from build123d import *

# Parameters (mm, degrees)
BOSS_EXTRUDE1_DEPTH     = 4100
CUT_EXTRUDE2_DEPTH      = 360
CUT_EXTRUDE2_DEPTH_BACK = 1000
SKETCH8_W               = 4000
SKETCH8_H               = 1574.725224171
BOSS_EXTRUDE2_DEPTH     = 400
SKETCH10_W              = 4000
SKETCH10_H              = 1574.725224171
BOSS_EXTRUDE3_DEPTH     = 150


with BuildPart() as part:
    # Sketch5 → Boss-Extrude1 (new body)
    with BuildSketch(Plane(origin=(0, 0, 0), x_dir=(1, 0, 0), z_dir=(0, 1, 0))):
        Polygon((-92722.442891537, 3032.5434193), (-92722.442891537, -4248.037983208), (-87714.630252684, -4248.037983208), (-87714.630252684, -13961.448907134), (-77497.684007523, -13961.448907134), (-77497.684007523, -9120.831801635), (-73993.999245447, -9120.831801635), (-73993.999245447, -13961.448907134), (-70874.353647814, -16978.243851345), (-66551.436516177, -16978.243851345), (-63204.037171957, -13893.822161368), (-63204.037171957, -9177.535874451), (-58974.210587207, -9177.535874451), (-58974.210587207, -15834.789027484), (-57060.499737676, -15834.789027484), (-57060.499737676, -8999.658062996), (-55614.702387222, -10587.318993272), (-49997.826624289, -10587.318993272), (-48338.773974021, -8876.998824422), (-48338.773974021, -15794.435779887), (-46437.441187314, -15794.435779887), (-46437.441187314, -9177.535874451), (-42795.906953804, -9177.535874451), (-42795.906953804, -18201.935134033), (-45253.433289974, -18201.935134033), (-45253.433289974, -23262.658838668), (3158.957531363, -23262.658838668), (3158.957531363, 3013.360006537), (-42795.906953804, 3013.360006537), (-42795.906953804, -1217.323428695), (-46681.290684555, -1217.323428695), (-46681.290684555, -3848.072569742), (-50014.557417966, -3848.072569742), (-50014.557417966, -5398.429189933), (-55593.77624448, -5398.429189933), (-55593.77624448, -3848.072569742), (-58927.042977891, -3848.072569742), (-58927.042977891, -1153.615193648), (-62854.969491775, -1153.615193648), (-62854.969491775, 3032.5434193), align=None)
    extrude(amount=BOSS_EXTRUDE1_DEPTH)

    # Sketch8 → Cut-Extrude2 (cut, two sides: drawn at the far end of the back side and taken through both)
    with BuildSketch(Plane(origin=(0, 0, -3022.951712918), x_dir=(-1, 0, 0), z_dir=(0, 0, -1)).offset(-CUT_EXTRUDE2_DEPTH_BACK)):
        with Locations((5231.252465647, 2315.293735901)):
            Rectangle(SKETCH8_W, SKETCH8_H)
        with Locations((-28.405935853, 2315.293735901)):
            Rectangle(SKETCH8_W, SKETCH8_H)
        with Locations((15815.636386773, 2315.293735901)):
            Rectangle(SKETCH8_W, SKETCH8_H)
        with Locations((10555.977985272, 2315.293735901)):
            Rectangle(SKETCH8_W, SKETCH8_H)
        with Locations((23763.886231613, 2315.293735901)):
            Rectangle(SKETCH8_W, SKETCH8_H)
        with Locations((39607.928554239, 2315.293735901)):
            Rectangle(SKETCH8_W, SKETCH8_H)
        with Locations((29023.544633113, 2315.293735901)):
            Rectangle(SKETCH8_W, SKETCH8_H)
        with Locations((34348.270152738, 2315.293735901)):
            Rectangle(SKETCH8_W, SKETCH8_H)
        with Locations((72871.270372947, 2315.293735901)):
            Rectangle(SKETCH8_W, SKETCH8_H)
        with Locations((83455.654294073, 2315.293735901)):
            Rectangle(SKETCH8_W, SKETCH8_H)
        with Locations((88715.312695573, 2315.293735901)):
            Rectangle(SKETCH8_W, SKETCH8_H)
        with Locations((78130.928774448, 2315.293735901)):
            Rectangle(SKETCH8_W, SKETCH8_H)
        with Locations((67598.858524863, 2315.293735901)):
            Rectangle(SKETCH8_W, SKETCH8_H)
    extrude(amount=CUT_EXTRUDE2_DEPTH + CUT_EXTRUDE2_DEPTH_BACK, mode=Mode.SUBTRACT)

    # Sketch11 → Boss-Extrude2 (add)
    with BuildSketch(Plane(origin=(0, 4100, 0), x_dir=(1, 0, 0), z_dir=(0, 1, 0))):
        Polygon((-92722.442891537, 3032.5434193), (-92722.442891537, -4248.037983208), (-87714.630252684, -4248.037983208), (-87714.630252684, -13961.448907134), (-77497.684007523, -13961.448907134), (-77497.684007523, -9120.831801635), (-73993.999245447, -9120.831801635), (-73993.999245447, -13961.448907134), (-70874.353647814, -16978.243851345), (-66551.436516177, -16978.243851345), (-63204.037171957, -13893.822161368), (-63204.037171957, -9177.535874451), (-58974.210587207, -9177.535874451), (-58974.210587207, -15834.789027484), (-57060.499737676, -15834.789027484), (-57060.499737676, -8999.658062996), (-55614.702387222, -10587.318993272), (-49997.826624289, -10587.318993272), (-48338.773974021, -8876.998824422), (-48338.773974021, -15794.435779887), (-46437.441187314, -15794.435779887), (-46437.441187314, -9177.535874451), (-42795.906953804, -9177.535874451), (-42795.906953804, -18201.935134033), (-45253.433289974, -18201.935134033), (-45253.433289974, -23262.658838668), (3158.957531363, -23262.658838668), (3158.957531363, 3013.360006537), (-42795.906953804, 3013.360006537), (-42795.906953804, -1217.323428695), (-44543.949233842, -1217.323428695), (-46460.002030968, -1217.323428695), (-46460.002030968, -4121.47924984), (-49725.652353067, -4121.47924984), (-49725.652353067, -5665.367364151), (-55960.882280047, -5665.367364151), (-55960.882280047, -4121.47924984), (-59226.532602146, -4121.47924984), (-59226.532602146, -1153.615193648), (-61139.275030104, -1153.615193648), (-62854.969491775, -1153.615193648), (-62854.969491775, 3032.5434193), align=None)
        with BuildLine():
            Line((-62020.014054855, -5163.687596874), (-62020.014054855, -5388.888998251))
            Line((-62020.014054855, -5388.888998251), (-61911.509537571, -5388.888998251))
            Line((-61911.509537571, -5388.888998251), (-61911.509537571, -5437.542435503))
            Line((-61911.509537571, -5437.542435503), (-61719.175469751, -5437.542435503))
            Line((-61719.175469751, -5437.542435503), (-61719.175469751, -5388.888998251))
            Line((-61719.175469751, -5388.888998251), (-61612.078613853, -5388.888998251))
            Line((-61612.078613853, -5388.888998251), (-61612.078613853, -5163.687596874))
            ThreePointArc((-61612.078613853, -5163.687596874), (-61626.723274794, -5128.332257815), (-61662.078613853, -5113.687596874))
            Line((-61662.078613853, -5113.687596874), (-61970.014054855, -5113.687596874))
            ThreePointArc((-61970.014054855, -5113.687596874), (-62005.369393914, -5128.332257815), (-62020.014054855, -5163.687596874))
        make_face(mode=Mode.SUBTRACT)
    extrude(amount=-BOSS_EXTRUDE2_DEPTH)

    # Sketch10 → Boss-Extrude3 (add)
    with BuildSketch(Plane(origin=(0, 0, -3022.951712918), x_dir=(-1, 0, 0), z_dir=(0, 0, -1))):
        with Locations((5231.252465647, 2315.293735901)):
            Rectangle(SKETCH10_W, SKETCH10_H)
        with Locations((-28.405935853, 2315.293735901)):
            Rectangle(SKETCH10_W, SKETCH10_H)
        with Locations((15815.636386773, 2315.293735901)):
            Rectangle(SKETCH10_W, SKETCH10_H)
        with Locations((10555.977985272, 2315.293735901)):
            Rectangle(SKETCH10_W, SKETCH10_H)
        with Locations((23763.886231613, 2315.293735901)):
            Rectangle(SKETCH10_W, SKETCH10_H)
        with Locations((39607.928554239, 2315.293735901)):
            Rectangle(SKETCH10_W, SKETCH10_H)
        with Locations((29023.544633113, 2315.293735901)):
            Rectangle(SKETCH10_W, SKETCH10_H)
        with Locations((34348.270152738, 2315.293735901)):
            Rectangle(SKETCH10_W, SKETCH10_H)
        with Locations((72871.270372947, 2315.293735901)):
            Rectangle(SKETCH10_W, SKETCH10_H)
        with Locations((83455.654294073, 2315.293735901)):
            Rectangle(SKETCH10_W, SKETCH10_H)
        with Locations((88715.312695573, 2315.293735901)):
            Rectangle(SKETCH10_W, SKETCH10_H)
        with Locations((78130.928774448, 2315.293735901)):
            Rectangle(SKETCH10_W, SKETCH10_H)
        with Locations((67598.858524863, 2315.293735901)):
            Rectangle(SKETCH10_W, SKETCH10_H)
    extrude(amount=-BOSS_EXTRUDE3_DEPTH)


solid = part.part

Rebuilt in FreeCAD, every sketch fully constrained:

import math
import FreeCAD as App
import Part
import Sketcher
from FreeCAD import Vector


def add_polygon(sketch, points):
    """Adds a closed chain of lines whose ends are joined by coincident constraints."""
    first, n = sketch.GeometryCount, len(points)
    for a, b in zip(points, points[1:] + points[:1]):
        sketch.addGeometry(Part.LineSegment(App.Vector(*a, 0), App.Vector(*b, 0)), False)
    for i in range(n):
        sketch.addConstraint(Sketcher.Constraint("Coincident", first + i, 2, first + (i + 1) % n, 1))

doc = App.newDocument("Part")
params = doc.addObject("Spreadsheet::Sheet", "Params")
for row, (alias, value) in enumerate([
    ("pad1_length", "4100 mm"),
    ("sketch2_width", "4000 mm"),
    ("pocket1_length", "360 mm"),
    ("pocket1_length2", "1000 mm"),
    ("sketch3_radius", "50 mm"),
    ("pad2_length", "400 mm"),
    ("sketch4_width", "4000 mm"),
    ("pad3_length", "150 mm"),
], start=1):
    params.set(f"A{row}", alias)
    params.set(f"B{row}", "=" + value)
    params.setAlias(f"B{row}", alias)

body = doc.addObject("PartDesign::Body", "Body")

sketch1 = body.newObject("Sketcher::SketchObject", "Sketch")
sketch1.AttachmentSupport = (doc.getObject("XZ_Plane"), [""])
sketch1.MapMode = "FlatFace"
add_polygon(sketch1, [(-92722, -3033), (-92722, 4248), (-87715, 4248), (-87715, 13961), (-77498, 13961), (-77498, 9121), (-73994, 9121), (-73994, 13961), (-70874, 16978), (-66551, 16978), (-63204, 13894), (-63204, 9178), (-58974, 9178), (-58974, 15835), (-57060, 15835), (-57060, 9000), (-55615, 10587), (-49998, 10587), (-48339, 8877), (-48339, 15794), (-46437, 15794), (-46437, 9178), (-42796, 9178), (-42796, 18202), (-45253, 18202), (-45253, 23263), (3159, 23263), (3159, -3013), (-42796, -3013), (-42796, 1217), (-46681, 1217), (-46681, 3848), (-50015, 3848), (-50015, 5398), (-55594, 5398), (-55594, 3848), (-58927, 3848), (-58927, 1154), (-62855, 1154), (-62855, -3033)])
sketch1.addConstraint(Sketcher.Constraint("Vertical", 0))
sketch1.addConstraint(Sketcher.Constraint("Horizontal", 1))
sketch1.addConstraint(Sketcher.Constraint("Vertical", 2))
sketch1.addConstraint(Sketcher.Constraint("Horizontal", 3))
sketch1.addConstraint(Sketcher.Constraint("Vertical", 4))
sketch1.addConstraint(Sketcher.Constraint("Horizontal", 5))
sketch1.addConstraint(Sketcher.Constraint("Vertical", 6))
sketch1.addConstraint(Sketcher.Constraint("Horizontal", 8))
sketch1.addConstraint(Sketcher.Constraint("Vertical", 10))
sketch1.addConstraint(Sketcher.Constraint("Horizontal", 11))
sketch1.addConstraint(Sketcher.Constraint("Vertical", 12))
sketch1.addConstraint(Sketcher.Constraint("Horizontal", 13))
sketch1.addConstraint(Sketcher.Constraint("Vertical", 14))
sketch1.addConstraint(Sketcher.Constraint("Horizontal", 16))
sketch1.addConstraint(Sketcher.Constraint("Vertical", 18))
sketch1.addConstraint(Sketcher.Constraint("Horizontal", 19))
sketch1.addConstraint(Sketcher.Constraint("Vertical", 20))
sketch1.addConstraint(Sketcher.Constraint("Horizontal", 21))
sketch1.addConstraint(Sketcher.Constraint("Vertical", 22))
sketch1.addConstraint(Sketcher.Constraint("Horizontal", 23))
sketch1.addConstraint(Sketcher.Constraint("Vertical", 24))
sketch1.addConstraint(Sketcher.Constraint("Horizontal", 25))
sketch1.addConstraint(Sketcher.Constraint("Vertical", 26))
sketch1.addConstraint(Sketcher.Constraint("Horizontal", 27))
sketch1.addConstraint(Sketcher.Constraint("Vertical", 28))
sketch1.addConstraint(Sketcher.Constraint("Horizontal", 29))
sketch1.addConstraint(Sketcher.Constraint("Vertical", 30))
sketch1.addConstraint(Sketcher.Constraint("Horizontal", 31))
sketch1.addConstraint(Sketcher.Constraint("Vertical", 32))
sketch1.addConstraint(Sketcher.Constraint("Horizontal", 33))
sketch1.addConstraint(Sketcher.Constraint("Vertical", 34))
sketch1.addConstraint(Sketcher.Constraint("Horizontal", 35))
sketch1.addConstraint(Sketcher.Constraint("Vertical", 36))
sketch1.addConstraint(Sketcher.Constraint("Horizontal", 37))
sketch1.addConstraint(Sketcher.Constraint("Vertical", 38))
sketch1.addConstraint(Sketcher.Constraint("Horizontal", 39))
sketch1.addConstraint(Sketcher.Constraint("Horizontal", 3, 2, 6, 2))
sketch1.addConstraint(Sketcher.Constraint("Horizontal", 11, 2, 20, 2))
sketch1.addConstraint(Sketcher.Constraint("Horizontal", 31, 2, 34, 2))
sketch1.addConstraint(Sketcher.Constraint("Vertical", 22, 2, 27, 2))
sketch1.addConstraint(Sketcher.Constraint("Equal", 31, 35))
sketch1.addConstraint(Sketcher.Constraint("DistanceX", 39, 2, 39, 1, 29867.4734))
sketch1.addConstraint(Sketcher.Constraint("DistanceY", 27, 2, 16, 2, 13600.679))
sketch1.addConstraint(Sketcher.Constraint("DistanceX", 1, 1, 1, 2, 5007.812639))
sketch1.addConstraint(Sketcher.Constraint("DistanceX", 8, 1, 8, 2, 4322.917132))
sketch1.addConstraint(Sketcher.Constraint("DistanceX", 13, 1, 13, 2, 1913.71085))
sketch1.addConstraint(Sketcher.Constraint("DistanceX", 25, 1, 25, 2, 48412.390821))
sketch1.addConstraint(Sketcher.Constraint("DistanceX", 29, 2, 29, 1, 3885.383731))
sketch1.addConstraint(Sketcher.Constraint("DistanceY", 22, 1, 22, 2, 9024.39926))
sketch1.addConstraint(Sketcher.Constraint("DistanceY", 30, 1, 30, 2, 2630.749141))
sketch1.addConstraint(Sketcher.Constraint("DistanceY", 32, 1, 32, 2, 1550.35662))
sketch1.addConstraint(Sketcher.Constraint("DistanceY", -1, 1, 4, 2, 9120.831802))
sketch1.addConstraint(Sketcher.Constraint("DistanceY", 14, 2, 9, 2, 4894.164098))
sketch1.addConstraint(Sketcher.Constraint("DistanceX", 11, 2, 15, 2, 3359.5082))
sketch1.addConstraint(Sketcher.Constraint("DistanceX", 15, 2, 19, 2, 9177.2612))
sketch1.addConstraint(Sketcher.Constraint("Distance", 17, 2382.78215))
sketch1.addConstraint(Sketcher.Constraint("DistanceX", 3, 1, 3, 2, 10216.946245))
sketch1.addConstraint(Sketcher.Constraint("DistanceX", 5, 1, 5, 2, 3503.684762))
sketch1.addConstraint(Sketcher.Constraint("DistanceX", 11, 1, 11, 2, 4229.826585))
sketch1.addConstraint(Sketcher.Constraint("DistanceX", 16, 1, 16, 2, 5616.875763))
sketch1.addConstraint(Sketcher.Constraint("DistanceX", 19, 1, 19, 2, 1901.332787))
sketch1.addConstraint(Sketcher.Constraint("DistanceX", 21, 1, 21, 2, 3641.534234))
sketch1.addConstraint(Sketcher.Constraint("DistanceX", 23, 2, 23, 1, 2457.526336))
sketch1.addConstraint(Sketcher.Constraint("DistanceX", 31, 2, 31, 1, 3333.266733))
sketch1.addConstraint(Sketcher.Constraint("DistanceX", 33, 2, 33, 1, 5579.218827))
sketch1.addConstraint(Sketcher.Constraint("DistanceX", 37, 2, 37, 1, 3927.926514))
sketch1.addConstraint(Sketcher.Constraint("DistanceY", 0, 1, 0, 2, 7280.581403))
sketch1.addConstraint(Sketcher.Constraint("DistanceY", 2, 1, 2, 2, 9713.410924))
sketch1.addConstraint(Sketcher.Constraint("DistanceY", 4, 2, 4, 1, 4840.617105))
sketch1.addConstraint(Sketcher.Constraint("DistanceY", 10, 2, 10, 1, 4716.286287))
sketch1.addConstraint(Sketcher.Constraint("DistanceY", 12, 1, 12, 2, 6657.253153))
sketch1.addConstraint(Sketcher.Constraint("DistanceY", 18, 1, 18, 2, 6917.436955))
sketch1.addConstraint(Sketcher.Constraint("DistanceY", 20, 2, 20, 1, 6616.899905))
sketch1.addConstraint(Sketcher.Constraint("DistanceY", 24, 1, 24, 2, 5060.723705))
sketch1.addConstraint(Sketcher.Constraint("DistanceY", 28, 1, 28, 2, 4230.683435))
sketch1.addConstraint(Sketcher.Constraint("DistanceY", 36, 2, 36, 1, 2694.457376))
sketch1.addConstraint(Sketcher.Constraint("DistanceY", 38, 2, 38, 1, 4186.158613))
sketch1.addConstraint(Sketcher.Constraint("DistanceX", 0, 2, -1, 1, 92722.442892))
sketch1.addConstraint(Sketcher.Constraint("DistanceY", -1, 1, 7, 2, 16978.243851))
sketch1.addConstraint(Sketcher.Constraint("DistanceX", 3, 2, 7, 2, 6623.33036))
pad1 = body.newObject("PartDesign::Pad", "Pad")
pad1.Profile = sketch1
pad1.setExpression("Length", "Params.pad1_length")
pad1.Reversed = True

sketch2 = body.newObject("Sketcher::SketchObject", "Sketch001")
sketch2.AttachmentSupport = (doc.getObject("XY_Plane"), [""])
sketch2.MapMode = "FlatFace"
sketch2.AttachmentOffset = App.Placement(Vector(0, 0, -3022.951713), App.Rotation())
add_polygon(sketch2, [(-3231, 3103), (-3231, 1528), (-7231, 1528), (-7231, 3103)])
add_polygon(sketch2, [(2028, 3103), (2028, 1528), (-1972, 1528), (-1972, 3103)])
add_polygon(sketch2, [(-13816, 3103), (-13816, 1528), (-17816, 1528), (-17816, 3103)])
add_polygon(sketch2, [(-8556, 3103), (-8556, 1528), (-12556, 1528), (-12556, 3103)])
add_polygon(sketch2, [(-21764, 3103), (-21764, 1528), (-25764, 1528), (-25764, 3103)])
add_polygon(sketch2, [(-37608, 3103), (-37608, 1528), (-41608, 1528), (-41608, 3103)])
add_polygon(sketch2, [(-27024, 3103), (-27024, 1528), (-31024, 1528), (-31024, 3103)])
add_polygon(sketch2, [(-32348, 3103), (-32348, 1528), (-36348, 1528), (-36348, 3103)])
add_polygon(sketch2, [(-70871, 3103), (-70871, 1528), (-74871, 1528), (-74871, 3103)])
add_polygon(sketch2, [(-81456, 3103), (-81456, 1528), (-85456, 1528), (-85456, 3103)])
add_polygon(sketch2, [(-86715, 3103), (-86715, 1528), (-90715, 1528), (-90715, 3103)])
add_polygon(sketch2, [(-76131, 3103), (-76131, 1528), (-80131, 1528), (-80131, 3103)])
add_polygon(sketch2, [(-65599, 3103), (-65599, 1528), (-69599, 1528), (-69599, 3103)])
sketch2.addConstraint(Sketcher.Constraint("Vertical", 0))
sketch2.addConstraint(Sketcher.Constraint("Horizontal", 1))
sketch2.addConstraint(Sketcher.Constraint("Vertical", 2))
sketch2.addConstraint(Sketcher.Constraint("Horizontal", 3))
sketch2.addConstraint(Sketcher.Constraint("Vertical", 4))
sketch2.addConstraint(Sketcher.Constraint("Horizontal", 5))
sketch2.addConstraint(Sketcher.Constraint("Vertical", 6))
sketch2.addConstraint(Sketcher.Constraint("Horizontal", 7))
sketch2.addConstraint(Sketcher.Constraint("Vertical", 8))
sketch2.addConstraint(Sketcher.Constraint("Horizontal", 9))
sketch2.addConstraint(Sketcher.Constraint("Vertical", 10))
sketch2.addConstraint(Sketcher.Constraint("Horizontal", 11))
sketch2.addConstraint(Sketcher.Constraint("Vertical", 12))
sketch2.addConstraint(Sketcher.Constraint("Horizontal", 13))
sketch2.addConstraint(Sketcher.Constraint("Vertical", 14))
sketch2.addConstraint(Sketcher.Constraint("Horizontal", 15))
sketch2.addConstraint(Sketcher.Constraint("Vertical", 16))
sketch2.addConstraint(Sketcher.Constraint("Horizontal", 17))
sketch2.addConstraint(Sketcher.Constraint("Vertical", 18))
sketch2.addConstraint(Sketcher.Constraint("Horizontal", 19))
sketch2.addConstraint(Sketcher.Constraint("Vertical", 20))
sketch2.addConstraint(Sketcher.Constraint("Horizontal", 21))
sketch2.addConstraint(Sketcher.Constraint("Vertical", 22))
sketch2.addConstraint(Sketcher.Constraint("Horizontal", 23))
sketch2.addConstraint(Sketcher.Constraint("Vertical", 24))
sketch2.addConstraint(Sketcher.Constraint("Horizontal", 25))
sketch2.addConstraint(Sketcher.Constraint("Vertical", 26))
sketch2.addConstraint(Sketcher.Constraint("Horizontal", 27))
sketch2.addConstraint(Sketcher.Constraint("Vertical", 28))
sketch2.addConstraint(Sketcher.Constraint("Horizontal", 29))
sketch2.addConstraint(Sketcher.Constraint("Vertical", 30))
sketch2.addConstraint(Sketcher.Constraint("Horizontal", 31))
sketch2.addConstraint(Sketcher.Constraint("Vertical", 32))
sketch2.addConstraint(Sketcher.Constraint("Horizontal", 33))
sketch2.addConstraint(Sketcher.Constraint("Vertical", 34))
sketch2.addConstraint(Sketcher.Constraint("Horizontal", 35))
sketch2.addConstraint(Sketcher.Constraint("Vertical", 36))
sketch2.addConstraint(Sketcher.Constraint("Horizontal", 37))
sketch2.addConstraint(Sketcher.Constraint("Vertical", 38))
sketch2.addConstraint(Sketcher.Constraint("Horizontal", 39))
sketch2.addConstraint(Sketcher.Constraint("Vertical", 40))
sketch2.addConstraint(Sketcher.Constraint("Horizontal", 41))
sketch2.addConstraint(Sketcher.Constraint("Vertical", 42))
sketch2.addConstraint(Sketcher.Constraint("Horizontal", 43))
sketch2.addConstraint(Sketcher.Constraint("Vertical", 44))
sketch2.addConstraint(Sketcher.Constraint("Horizontal", 45))
sketch2.addConstraint(Sketcher.Constraint("Vertical", 46))
sketch2.addConstraint(Sketcher.Constraint("Horizontal", 47))
sketch2.addConstraint(Sketcher.Constraint("Vertical", 48))
sketch2.addConstraint(Sketcher.Constraint("Horizontal", 49))
sketch2.addConstraint(Sketcher.Constraint("Vertical", 50))
sketch2.addConstraint(Sketcher.Constraint("Horizontal", 51))
sketch2.addConstraint(Sketcher.Constraint("Horizontal", 1, 2, 4, 2))
sketch2.addConstraint(Sketcher.Constraint("Horizontal", 3, 2, 6, 2))
sketch2.addConstraint(Sketcher.Constraint("Horizontal", 5, 2, 8, 2))
sketch2.addConstraint(Sketcher.Constraint("Horizontal", 7, 2, 10, 2))
sketch2.addConstraint(Sketcher.Constraint("Horizontal", 9, 2, 12, 2))
sketch2.addConstraint(Sketcher.Constraint("Horizontal", 11, 2, 14, 2))
sketch2.addConstraint(Sketcher.Constraint("Horizontal", 13, 2, 16, 2))
sketch2.addConstraint(Sketcher.Constraint("Horizontal", 15, 2, 18, 2))
sketch2.addConstraint(Sketcher.Constraint("Horizontal", 17, 2, 20, 2))
sketch2.addConstraint(Sketcher.Constraint("Horizontal", 19, 2, 22, 2))
sketch2.addConstraint(Sketcher.Constraint("Horizontal", 21, 2, 24, 2))
sketch2.addConstraint(Sketcher.Constraint("Horizontal", 23, 2, 26, 2))
sketch2.addConstraint(Sketcher.Constraint("Horizontal", 25, 2, 28, 2))
sketch2.addConstraint(Sketcher.Constraint("Horizontal", 27, 2, 30, 2))
sketch2.addConstraint(Sketcher.Constraint("Horizontal", 29, 2, 32, 2))
sketch2.addConstraint(Sketcher.Constraint("Horizontal", 31, 2, 34, 2))
sketch2.addConstraint(Sketcher.Constraint("Horizontal", 33, 2, 36, 2))
sketch2.addConstraint(Sketcher.Constraint("Horizontal", 35, 2, 38, 2))
sketch2.addConstraint(Sketcher.Constraint("Horizontal", 37, 2, 40, 2))
sketch2.addConstraint(Sketcher.Constraint("Horizontal", 39, 2, 42, 2))
sketch2.addConstraint(Sketcher.Constraint("Horizontal", 41, 2, 44, 2))
sketch2.addConstraint(Sketcher.Constraint("Horizontal", 43, 2, 46, 2))
sketch2.addConstraint(Sketcher.Constraint("Horizontal", 45, 2, 48, 2))
sketch2.addConstraint(Sketcher.Constraint("Horizontal", 47, 2, 50, 2))
sketch2.addConstraint(Sketcher.Constraint("Equal", 3, 5))
sketch2.addConstraint(Sketcher.Constraint("Equal", 7, 9))
sketch2.addConstraint(Sketcher.Constraint("Equal", 11, 13))
sketch2.addConstraint(Sketcher.Constraint("Equal", 15, 17))
sketch2.addConstraint(Sketcher.Constraint("Equal", 19, 21))
sketch2.addConstraint(Sketcher.Constraint("Equal", 23, 25))
sketch2.addConstraint(Sketcher.Constraint("Equal", 27, 29))
sketch2.addConstraint(Sketcher.Constraint("Equal", 31, 33))
sketch2.addConstraint(Sketcher.Constraint("Equal", 35, 37))
sketch2.addConstraint(Sketcher.Constraint("Equal", 39, 41))
sketch2.addConstraint(Sketcher.Constraint("Equal", 43, 45))
sketch2.addConstraint(Sketcher.Constraint("Equal", 47, 49))
sketch2.addConstraint(Sketcher.Constraint("DistanceX", 1, 2, 1, 1, 4000.0))
sketch2.addConstraint(Sketcher.Constraint("DistanceX", 0, 2, 4, 2, 5259.658401))
sketch2.addConstraint(Sketcher.Constraint("DistanceX", 8, 2, 12, 2, 5259.658402))
sketch2.addConstraint(Sketcher.Constraint("DistanceX", 24, 2, 17, 2, 1259.658402))
sketch2.addConstraint(Sketcher.Constraint("DistanceX", 20, 2, 28, 2, 5259.658402))
sketch2.addConstraint(Sketcher.Constraint("DistanceX", 40, 2, 37, 2, 1259.658401))
sketch2.addConstraint(Sketcher.Constraint("DistanceX", 44, 2, 33, 2, 1259.658402))
sketch2.addConstraint(Sketcher.Constraint("DistanceY", 0, 2, 0, 1, 1574.725224))
sketch2.addConstraint(Sketcher.Constraint("DistanceX", 16, 2, -1, 1, 21763.886232))
sketch2.addConstraint(Sketcher.Constraint("DistanceX", 8, 2, 1, 2, 6584.383921))
sketch2.addConstraint(Sketcher.Constraint("DistanceX", 20, 2, 25, 2, 6584.383921))
sketch2.addConstraint(Sketcher.Constraint("DistanceX", 32, 2, 21, 2, 29263.341819))
sketch2.addConstraint(Sketcher.Constraint("DistanceX", 36, 2, 33, 2, 6584.383921))
sketch2.addConstraint(Sketcher.Constraint("DistanceX", 32, 2, 48, 2, 5272.411848))
sketch2.addConstraint(Sketcher.Constraint("DistanceX", 0, 2, -1, 1, 3231.252466))
sketch2.addConstraint(Sketcher.Constraint("DistanceY", -1, 1, 0, 2, 1527.931124))
sketch2.setExpression("Constraints[140]", "Params.sketch2_width")
pocket1 = body.newObject("PartDesign::Pocket", "Pocket")
pocket1.Profile = sketch2
pocket1.Type = "TwoLengths"
pocket1.setExpression("Length", "Params.pocket1_length")
pocket1.setExpression("Length2", "Params.pocket1_length2")

sketch3 = body.newObject("Sketcher::SketchObject", "Sketch002")
sketch3.AttachmentSupport = (doc.getObject("XZ_Plane"), [""])
sketch3.MapMode = "FlatFace"
sketch3.AttachmentOffset = App.Placement(Vector(0, 0, -4100), App.Rotation())
add_polygon(sketch3, [(-92722, -3033), (-92722, 4248), (-87715, 4248), (-87715, 13961), (-77498, 13961), (-77498, 9121), (-73994, 9121), (-73994, 13961), (-70874, 16978), (-66551, 16978), (-63204, 13894), (-63204, 9178), (-58974, 9178), (-58974, 15835), (-57060, 15835), (-57060, 9000), (-55615, 10587), (-49998, 10587), (-48339, 8877), (-48339, 15794), (-46437, 15794), (-46437, 9178), (-42796, 9178), (-42796, 18202), (-45253, 18202), (-45253, 23263), (3159, 23263), (3159, -3013), (-42796, -3013), (-42796, 1217), (-46460, 1217), (-46460, 4121), (-49726, 4121), (-49726, 5665), (-55961, 5665), (-55961, 4121), (-59227, 4121), (-59227, 1154), (-62855, 1154), (-62855, -3033)])
sketch3.addGeometry(Part.LineSegment(Vector(-62020, 5389, 0), Vector(-62020, 5164, 0)), False)
sketch3.addGeometry(Part.ArcOfCircle(Part.Circle(Vector(-61970, 5164, 0), Vector(0, 0, 1), 50), math.radians(-180), math.radians(-90)), False)
sketch3.addGeometry(Part.LineSegment(Vector(-61970, 5114, 0), Vector(-61662, 5114, 0)), False)
sketch3.addGeometry(Part.ArcOfCircle(Part.Circle(Vector(-61662, 5164, 0), Vector(0, 0, 1), 50), math.radians(-90), math.radians(0)), False)
sketch3.addGeometry(Part.LineSegment(Vector(-61612, 5164, 0), Vector(-61612, 5389, 0)), False)
sketch3.addGeometry(Part.LineSegment(Vector(-61612, 5389, 0), Vector(-61719, 5389, 0)), False)
sketch3.addGeometry(Part.LineSegment(Vector(-61719, 5389, 0), Vector(-61719, 5438, 0)), False)
sketch3.addGeometry(Part.LineSegment(Vector(-61719, 5438, 0), Vector(-61912, 5438, 0)), False)
sketch3.addGeometry(Part.LineSegment(Vector(-61912, 5438, 0), Vector(-61912, 5389, 0)), False)
sketch3.addGeometry(Part.LineSegment(Vector(-61912, 5389, 0), Vector(-62020, 5389, 0)), False)
sketch3.addConstraint(Sketcher.Constraint("Tangent", 40, 2, 41, 1))
sketch3.addConstraint(Sketcher.Constraint("Tangent", 41, 2, 42, 1))
sketch3.addConstraint(Sketcher.Constraint("Tangent", 42, 2, 43, 1))
sketch3.addConstraint(Sketcher.Constraint("Tangent", 43, 2, 44, 1))
sketch3.addConstraint(Sketcher.Constraint("Coincident", 44, 2, 45, 1))
sketch3.addConstraint(Sketcher.Constraint("Coincident", 45, 2, 46, 1))
sketch3.addConstraint(Sketcher.Constraint("Coincident", 46, 2, 47, 1))
sketch3.addConstraint(Sketcher.Constraint("Coincident", 47, 2, 48, 1))
sketch3.addConstraint(Sketcher.Constraint("Coincident", 48, 2, 49, 1))
sketch3.addConstraint(Sketcher.Constraint("Coincident", 49, 2, 40, 1))
sketch3.addConstraint(Sketcher.Constraint("Vertical", 0))
sketch3.addConstraint(Sketcher.Constraint("Horizontal", 1))
sketch3.addConstraint(Sketcher.Constraint("Vertical", 2))
sketch3.addConstraint(Sketcher.Constraint("Horizontal", 3))
sketch3.addConstraint(Sketcher.Constraint("Vertical", 4))
sketch3.addConstraint(Sketcher.Constraint("Horizontal", 5))
sketch3.addConstraint(Sketcher.Constraint("Vertical", 6))
sketch3.addConstraint(Sketcher.Constraint("Horizontal", 8))
sketch3.addConstraint(Sketcher.Constraint("Vertical", 10))
sketch3.addConstraint(Sketcher.Constraint("Horizontal", 11))
sketch3.addConstraint(Sketcher.Constraint("Vertical", 12))
sketch3.addConstraint(Sketcher.Constraint("Horizontal", 13))
sketch3.addConstraint(Sketcher.Constraint("Vertical", 14))
sketch3.addConstraint(Sketcher.Constraint("Horizontal", 16))
sketch3.addConstraint(Sketcher.Constraint("Vertical", 18))
sketch3.addConstraint(Sketcher.Constraint("Horizontal", 19))
sketch3.addConstraint(Sketcher.Constraint("Vertical", 20))
sketch3.addConstraint(Sketcher.Constraint("Horizontal", 21))
sketch3.addConstraint(Sketcher.Constraint("Vertical", 22))
sketch3.addConstraint(Sketcher.Constraint("Horizontal", 23))
sketch3.addConstraint(Sketcher.Constraint("Vertical", 24))
sketch3.addConstraint(Sketcher.Constraint("Horizontal", 25))
sketch3.addConstraint(Sketcher.Constraint("Vertical", 26))
sketch3.addConstraint(Sketcher.Constraint("Horizontal", 27))
sketch3.addConstraint(Sketcher.Constraint("Vertical", 28))
sketch3.addConstraint(Sketcher.Constraint("Horizontal", 29))
sketch3.addConstraint(Sketcher.Constraint("Vertical", 30))
sketch3.addConstraint(Sketcher.Constraint("Horizontal", 31))
sketch3.addConstraint(Sketcher.Constraint("Vertical", 32))
sketch3.addConstraint(Sketcher.Constraint("Horizontal", 33))
sketch3.addConstraint(Sketcher.Constraint("Vertical", 34))
sketch3.addConstraint(Sketcher.Constraint("Horizontal", 35))
sketch3.addConstraint(Sketcher.Constraint("Vertical", 36))
sketch3.addConstraint(Sketcher.Constraint("Horizontal", 37))
sketch3.addConstraint(Sketcher.Constraint("Vertical", 38))
sketch3.addConstraint(Sketcher.Constraint("Horizontal", 39))
sketch3.addConstraint(Sketcher.Constraint("Vertical", 40))
sketch3.addConstraint(Sketcher.Constraint("Horizontal", 42))
sketch3.addConstraint(Sketcher.Constraint("Vertical", 44))
sketch3.addConstraint(Sketcher.Constraint("Horizontal", 45))
sketch3.addConstraint(Sketcher.Constraint("Vertical", 46))
sketch3.addConstraint(Sketcher.Constraint("Horizontal", 47))
sketch3.addConstraint(Sketcher.Constraint("Vertical", 48))
sketch3.addConstraint(Sketcher.Constraint("Horizontal", 49))
sketch3.addConstraint(Sketcher.Constraint("Equal", 41, 43))
sketch3.addConstraint(Sketcher.Constraint("Horizontal", 3, 2, 6, 2))
sketch3.addConstraint(Sketcher.Constraint("Horizontal", 11, 2, 20, 2))
sketch3.addConstraint(Sketcher.Constraint("Horizontal", 31, 2, 34, 2))
sketch3.addConstraint(Sketcher.Constraint("Horizontal", 45, 2, 48, 2))
sketch3.addConstraint(Sketcher.Constraint("Vertical", 22, 2, 27, 2))
sketch3.addConstraint(Sketcher.Constraint("Equal", 31, 35))
sketch3.addConstraint(Sketcher.Constraint("Radius", 41, 50.0))
sketch3.addConstraint(Sketcher.Constraint("DistanceX", 39, 2, 39, 1, 29867.4734))
sketch3.addConstraint(Sketcher.Constraint("DistanceY", 40, 2, 40, 1, 225.201401))
sketch3.addConstraint(Sketcher.Constraint("DistanceY", -1, 1, 44, 2, 5388.888998))
sketch3.addConstraint(Sketcher.Constraint("DistanceY", 27, 2, 16, 2, 13600.679))
sketch3.addConstraint(Sketcher.Constraint("DistanceX", 1, 1, 1, 2, 5007.812639))
sketch3.addConstraint(Sketcher.Constraint("DistanceX", 8, 1, 8, 2, 4322.917132))
sketch3.addConstraint(Sketcher.Constraint("DistanceX", 13, 1, 13, 2, 1913.71085))
sketch3.addConstraint(Sketcher.Constraint("DistanceX", 25, 1, 25, 2, 48412.390821))
sketch3.addConstraint(Sketcher.Constraint("DistanceX", 37, 2, 37, 1, 3628.43689))
sketch3.addConstraint(Sketcher.Constraint("DistanceX", 42, 1, 42, 2, 307.935441))
sketch3.addConstraint(Sketcher.Constraint("DistanceY", 22, 1, 22, 2, 9024.39926))
sketch3.addConstraint(Sketcher.Constraint("DistanceY", 30, 1, 30, 2, 2904.155821))
sketch3.addConstraint(Sketcher.Constraint("DistanceY", -1, 1, 4, 2, 9120.831802))
sketch3.addConstraint(Sketcher.Constraint("DistanceX", 11, 2, 15, 2, 3359.5082))
sketch3.addConstraint(Sketcher.Constraint("DistanceX", 15, 2, 19, 2, 9177.2612))
sketch3.addConstraint(Sketcher.Constraint("DistanceY", 33, 2, 14, 2, 3334.290699))
sketch3.addConstraint(Sketcher.Constraint("Distance", 17, 2382.78215))
sketch3.addConstraint(Sketcher.Constraint("DistanceX", 3, 1, 3, 2, 10216.946245))
sketch3.addConstraint(Sketcher.Constraint("DistanceX", 5, 1, 5, 2, 3503.684762))
sketch3.addConstraint(Sketcher.Constraint("DistanceX", 11, 1, 11, 2, 4229.826585))
sketch3.addConstraint(Sketcher.Constraint("DistanceX", 16, 1, 16, 2, 5616.875763))
sketch3.addConstraint(Sketcher.Constraint("DistanceX", 19, 1, 19, 2, 1901.332787))
sketch3.addConstraint(Sketcher.Constraint("DistanceX", 21, 1, 21, 2, 3641.534234))
sketch3.addConstraint(Sketcher.Constraint("DistanceX", 23, 2, 23, 1, 2457.526336))
sketch3.addConstraint(Sketcher.Constraint("DistanceX", 29, 2, 29, 1, 3664.095077))
sketch3.addConstraint(Sketcher.Constraint("DistanceX", 31, 2, 31, 1, 3265.650322))
sketch3.addConstraint(Sketcher.Constraint("DistanceX", 33, 2, 33, 1, 6235.229927))
sketch3.addConstraint(Sketcher.Constraint("DistanceX", 45, 2, 45, 1, 107.096856))
sketch3.addConstraint(Sketcher.Constraint("DistanceX", 47, 2, 47, 1, 192.334068))
sketch3.addConstraint(Sketcher.Constraint("DistanceY", 0, 1, 0, 2, 7280.581403))
sketch3.addConstraint(Sketcher.Constraint("DistanceY", 2, 1, 2, 2, 9713.410924))
sketch3.addConstraint(Sketcher.Constraint("DistanceY", 4, 2, 4, 1, 4840.617105))
sketch3.addConstraint(Sketcher.Constraint("DistanceY", 10, 2, 10, 1, 4716.286287))
sketch3.addConstraint(Sketcher.Constraint("DistanceY", 12, 1, 12, 2, 6657.253153))
sketch3.addConstraint(Sketcher.Constraint("DistanceY", 14, 2, 14, 1, 6835.130964))
sketch3.addConstraint(Sketcher.Constraint("DistanceY", 18, 1, 18, 2, 6917.436955))
sketch3.addConstraint(Sketcher.Constraint("DistanceY", 20, 2, 20, 1, 6616.899905))
sketch3.addConstraint(Sketcher.Constraint("DistanceY", 24, 1, 24, 2, 5060.723705))
sketch3.addConstraint(Sketcher.Constraint("DistanceY", 28, 1, 28, 2, 4230.683435))
sketch3.addConstraint(Sketcher.Constraint("DistanceY", 36, 2, 36, 1, 2967.864056))
sketch3.addConstraint(Sketcher.Constraint("DistanceY", 38, 2, 38, 1, 4186.158613))
sketch3.addConstraint(Sketcher.Constraint("DistanceY", 46, 1, 46, 2, 48.653437))
sketch3.addConstraint(Sketcher.Constraint("DistanceX", 0, 2, -1, 1, 92722.442892))
sketch3.addConstraint(Sketcher.Constraint("DistanceY", -1, 1, 7, 2, 16978.243851))
sketch3.addConstraint(Sketcher.Constraint("DistanceX", 45, 2, -1, 1, 61719.17547))
sketch3.addConstraint(Sketcher.Constraint("DistanceX", 3, 2, 7, 2, 6623.33036))
sketch3.setExpression("Constraints[101]", "Params.sketch3_radius")
pad2 = body.newObject("PartDesign::Pad", "Pad001")
pad2.Profile = sketch3
pad2.setExpression("Length", "Params.pad2_length")

sketch4 = body.newObject("Sketcher::SketchObject", "Sketch003")
sketch4.AttachmentSupport = (doc.getObject("XY_Plane"), [""])
sketch4.MapMode = "FlatFace"
sketch4.AttachmentOffset = App.Placement(Vector(0, 0, -3022.951713), App.Rotation())
add_polygon(sketch4, [(-3231, 3103), (-3231, 1528), (-7231, 1528), (-7231, 3103)])
add_polygon(sketch4, [(2028, 3103), (2028, 1528), (-1972, 1528), (-1972, 3103)])
add_polygon(sketch4, [(-13816, 3103), (-13816, 1528), (-17816, 1528), (-17816, 3103)])
add_polygon(sketch4, [(-8556, 3103), (-8556, 1528), (-12556, 1528), (-12556, 3103)])
add_polygon(sketch4, [(-21764, 3103), (-21764, 1528), (-25764, 1528), (-25764, 3103)])
add_polygon(sketch4, [(-37608, 3103), (-37608, 1528), (-41608, 1528), (-41608, 3103)])
add_polygon(sketch4, [(-27024, 3103), (-27024, 1528), (-31024, 1528), (-31024, 3103)])
add_polygon(sketch4, [(-32348, 3103), (-32348, 1528), (-36348, 1528), (-36348, 3103)])
add_polygon(sketch4, [(-70871, 3103), (-70871, 1528), (-74871, 1528), (-74871, 3103)])
add_polygon(sketch4, [(-81456, 3103), (-81456, 1528), (-85456, 1528), (-85456, 3103)])
add_polygon(sketch4, [(-86715, 3103), (-86715, 1528), (-90715, 1528), (-90715, 3103)])
add_polygon(sketch4, [(-76131, 3103), (-76131, 1528), (-80131, 1528), (-80131, 3103)])
add_polygon(sketch4, [(-65599, 3103), (-65599, 1528), (-69599, 1528), (-69599, 3103)])
sketch4.addConstraint(Sketcher.Constraint("Vertical", 0))
sketch4.addConstraint(Sketcher.Constraint("Horizontal", 1))
sketch4.addConstraint(Sketcher.Constraint("Vertical", 2))
sketch4.addConstraint(Sketcher.Constraint("Horizontal", 3))
sketch4.addConstraint(Sketcher.Constraint("Vertical", 4))
sketch4.addConstraint(Sketcher.Constraint("Horizontal", 5))
sketch4.addConstraint(Sketcher.Constraint("Vertical", 6))
sketch4.addConstraint(Sketcher.Constraint("Horizontal", 7))
sketch4.addConstraint(Sketcher.Constraint("Vertical", 8))
sketch4.addConstraint(Sketcher.Constraint("Horizontal", 9))
sketch4.addConstraint(Sketcher.Constraint("Vertical", 10))
sketch4.addConstraint(Sketcher.Constraint("Horizontal", 11))
sketch4.addConstraint(Sketcher.Constraint("Vertical", 12))
sketch4.addConstraint(Sketcher.Constraint("Horizontal", 13))
sketch4.addConstraint(Sketcher.Constraint("Vertical", 14))
sketch4.addConstraint(Sketcher.Constraint("Horizontal", 15))
sketch4.addConstraint(Sketcher.Constraint("Vertical", 16))
sketch4.addConstraint(Sketcher.Constraint("Horizontal", 17))
sketch4.addConstraint(Sketcher.Constraint("Vertical", 18))
sketch4.addConstraint(Sketcher.Constraint("Horizontal", 19))
sketch4.addConstraint(Sketcher.Constraint("Vertical", 20))
sketch4.addConstraint(Sketcher.Constraint("Horizontal", 21))
sketch4.addConstraint(Sketcher.Constraint("Vertical", 22))
sketch4.addConstraint(Sketcher.Constraint("Horizontal", 23))
sketch4.addConstraint(Sketcher.Constraint("Vertical", 24))
sketch4.addConstraint(Sketcher.Constraint("Horizontal", 25))
sketch4.addConstraint(Sketcher.Constraint("Vertical", 26))
sketch4.addConstraint(Sketcher.Constraint("Horizontal", 27))
sketch4.addConstraint(Sketcher.Constraint("Vertical", 28))
sketch4.addConstraint(Sketcher.Constraint("Horizontal", 29))
sketch4.addConstraint(Sketcher.Constraint("Vertical", 30))
sketch4.addConstraint(Sketcher.Constraint("Horizontal", 31))
sketch4.addConstraint(Sketcher.Constraint("Vertical", 32))
sketch4.addConstraint(Sketcher.Constraint("Horizontal", 33))
sketch4.addConstraint(Sketcher.Constraint("Vertical", 34))
sketch4.addConstraint(Sketcher.Constraint("Horizontal", 35))
sketch4.addConstraint(Sketcher.Constraint("Vertical", 36))
sketch4.addConstraint(Sketcher.Constraint("Horizontal", 37))
sketch4.addConstraint(Sketcher.Constraint("Vertical", 38))
sketch4.addConstraint(Sketcher.Constraint("Horizontal", 39))
sketch4.addConstraint(Sketcher.Constraint("Vertical", 40))
sketch4.addConstraint(Sketcher.Constraint("Horizontal", 41))
sketch4.addConstraint(Sketcher.Constraint("Vertical", 42))
sketch4.addConstraint(Sketcher.Constraint("Horizontal", 43))
sketch4.addConstraint(Sketcher.Constraint("Vertical", 44))
sketch4.addConstraint(Sketcher.Constraint("Horizontal", 45))
sketch4.addConstraint(Sketcher.Constraint("Vertical", 46))
sketch4.addConstraint(Sketcher.Constraint("Horizontal", 47))
sketch4.addConstraint(Sketcher.Constraint("Vertical", 48))
sketch4.addConstraint(Sketcher.Constraint("Horizontal", 49))
sketch4.addConstraint(Sketcher.Constraint("Vertical", 50))
sketch4.addConstraint(Sketcher.Constraint("Horizontal", 51))
sketch4.addConstraint(Sketcher.Constraint("Horizontal", 1, 2, 4, 2))
sketch4.addConstraint(Sketcher.Constraint("Horizontal", 3, 2, 6, 2))
sketch4.addConstraint(Sketcher.Constraint("Horizontal", 5, 2, 8, 2))
sketch4.addConstraint(Sketcher.Constraint("Horizontal", 7, 2, 10, 2))
sketch4.addConstraint(Sketcher.Constraint("Horizontal", 9, 2, 12, 2))
sketch4.addConstraint(Sketcher.Constraint("Horizontal", 11, 2, 14, 2))
sketch4.addConstraint(Sketcher.Constraint("Horizontal", 13, 2, 16, 2))
sketch4.addConstraint(Sketcher.Constraint("Horizontal", 15, 2, 18, 2))
sketch4.addConstraint(Sketcher.Constraint("Horizontal", 17, 2, 20, 2))
sketch4.addConstraint(Sketcher.Constraint("Horizontal", 19, 2, 22, 2))
sketch4.addConstraint(Sketcher.Constraint("Horizontal", 21, 2, 24, 2))
sketch4.addConstraint(Sketcher.Constraint("Horizontal", 23, 2, 26, 2))
sketch4.addConstraint(Sketcher.Constraint("Horizontal", 25, 2, 28, 2))
sketch4.addConstraint(Sketcher.Constraint("Horizontal", 27, 2, 30, 2))
sketch4.addConstraint(Sketcher.Constraint("Horizontal", 29, 2, 32, 2))
sketch4.addConstraint(Sketcher.Constraint("Horizontal", 31, 2, 34, 2))
sketch4.addConstraint(Sketcher.Constraint("Horizontal", 33, 2, 36, 2))
sketch4.addConstraint(Sketcher.Constraint("Horizontal", 35, 2, 38, 2))
sketch4.addConstraint(Sketcher.Constraint("Horizontal", 37, 2, 40, 2))
sketch4.addConstraint(Sketcher.Constraint("Horizontal", 39, 2, 42, 2))
sketch4.addConstraint(Sketcher.Constraint("Horizontal", 41, 2, 44, 2))
sketch4.addConstraint(Sketcher.Constraint("Horizontal", 43, 2, 46, 2))
sketch4.addConstraint(Sketcher.Constraint("Horizontal", 45, 2, 48, 2))
sketch4.addConstraint(Sketcher.Constraint("Horizontal", 47, 2, 50, 2))
sketch4.addConstraint(Sketcher.Constraint("Equal", 3, 5))
sketch4.addConstraint(Sketcher.Constraint("Equal", 7, 9))
sketch4.addConstraint(Sketcher.Constraint("Equal", 11, 13))
sketch4.addConstraint(Sketcher.Constraint("Equal", 15, 17))
sketch4.addConstraint(Sketcher.Constraint("Equal", 19, 21))
sketch4.addConstraint(Sketcher.Constraint("Equal", 23, 25))
sketch4.addConstraint(Sketcher.Constraint("Equal", 27, 29))
sketch4.addConstraint(Sketcher.Constraint("Equal", 31, 33))
sketch4.addConstraint(Sketcher.Constraint("Equal", 35, 37))
sketch4.addConstraint(Sketcher.Constraint("Equal", 39, 41))
sketch4.addConstraint(Sketcher.Constraint("Equal", 43, 45))
sketch4.addConstraint(Sketcher.Constraint("Equal", 47, 49))
sketch4.addConstraint(Sketcher.Constraint("DistanceX", 1, 2, 1, 1, 4000.0))
sketch4.addConstraint(Sketcher.Constraint("DistanceX", 0, 2, 4, 2, 5259.658401))
sketch4.addConstraint(Sketcher.Constraint("DistanceX", 8, 2, 12, 2, 5259.658402))
sketch4.addConstraint(Sketcher.Constraint("DistanceX", 24, 2, 17, 2, 1259.658402))
sketch4.addConstraint(Sketcher.Constraint("DistanceX", 20, 2, 28, 2, 5259.658402))
sketch4.addConstraint(Sketcher.Constraint("DistanceX", 40, 2, 37, 2, 1259.658401))
sketch4.addConstraint(Sketcher.Constraint("DistanceX", 44, 2, 33, 2, 1259.658402))
sketch4.addConstraint(Sketcher.Constraint("DistanceY", 0, 2, 0, 1, 1574.725224))
sketch4.addConstraint(Sketcher.Constraint("DistanceX", 16, 2, -1, 1, 21763.886232))
sketch4.addConstraint(Sketcher.Constraint("DistanceX", 8, 2, 1, 2, 6584.383921))
sketch4.addConstraint(Sketcher.Constraint("DistanceX", 20, 2, 25, 2, 6584.383921))
sketch4.addConstraint(Sketcher.Constraint("DistanceX", 32, 2, 21, 2, 29263.341819))
sketch4.addConstraint(Sketcher.Constraint("DistanceX", 36, 2, 33, 2, 6584.383921))
sketch4.addConstraint(Sketcher.Constraint("DistanceX", 32, 2, 48, 2, 5272.411848))
sketch4.addConstraint(Sketcher.Constraint("DistanceX", 0, 2, -1, 1, 3231.252466))
sketch4.addConstraint(Sketcher.Constraint("DistanceY", -1, 1, 0, 2, 1527.931124))
sketch4.setExpression("Constraints[140]", "Params.sketch4_width")
pad3 = body.newObject("PartDesign::Pad", "Pad002")
pad3.Profile = sketch4
pad3.setExpression("Length", "Params.pad3_length")

doc.recompute()
